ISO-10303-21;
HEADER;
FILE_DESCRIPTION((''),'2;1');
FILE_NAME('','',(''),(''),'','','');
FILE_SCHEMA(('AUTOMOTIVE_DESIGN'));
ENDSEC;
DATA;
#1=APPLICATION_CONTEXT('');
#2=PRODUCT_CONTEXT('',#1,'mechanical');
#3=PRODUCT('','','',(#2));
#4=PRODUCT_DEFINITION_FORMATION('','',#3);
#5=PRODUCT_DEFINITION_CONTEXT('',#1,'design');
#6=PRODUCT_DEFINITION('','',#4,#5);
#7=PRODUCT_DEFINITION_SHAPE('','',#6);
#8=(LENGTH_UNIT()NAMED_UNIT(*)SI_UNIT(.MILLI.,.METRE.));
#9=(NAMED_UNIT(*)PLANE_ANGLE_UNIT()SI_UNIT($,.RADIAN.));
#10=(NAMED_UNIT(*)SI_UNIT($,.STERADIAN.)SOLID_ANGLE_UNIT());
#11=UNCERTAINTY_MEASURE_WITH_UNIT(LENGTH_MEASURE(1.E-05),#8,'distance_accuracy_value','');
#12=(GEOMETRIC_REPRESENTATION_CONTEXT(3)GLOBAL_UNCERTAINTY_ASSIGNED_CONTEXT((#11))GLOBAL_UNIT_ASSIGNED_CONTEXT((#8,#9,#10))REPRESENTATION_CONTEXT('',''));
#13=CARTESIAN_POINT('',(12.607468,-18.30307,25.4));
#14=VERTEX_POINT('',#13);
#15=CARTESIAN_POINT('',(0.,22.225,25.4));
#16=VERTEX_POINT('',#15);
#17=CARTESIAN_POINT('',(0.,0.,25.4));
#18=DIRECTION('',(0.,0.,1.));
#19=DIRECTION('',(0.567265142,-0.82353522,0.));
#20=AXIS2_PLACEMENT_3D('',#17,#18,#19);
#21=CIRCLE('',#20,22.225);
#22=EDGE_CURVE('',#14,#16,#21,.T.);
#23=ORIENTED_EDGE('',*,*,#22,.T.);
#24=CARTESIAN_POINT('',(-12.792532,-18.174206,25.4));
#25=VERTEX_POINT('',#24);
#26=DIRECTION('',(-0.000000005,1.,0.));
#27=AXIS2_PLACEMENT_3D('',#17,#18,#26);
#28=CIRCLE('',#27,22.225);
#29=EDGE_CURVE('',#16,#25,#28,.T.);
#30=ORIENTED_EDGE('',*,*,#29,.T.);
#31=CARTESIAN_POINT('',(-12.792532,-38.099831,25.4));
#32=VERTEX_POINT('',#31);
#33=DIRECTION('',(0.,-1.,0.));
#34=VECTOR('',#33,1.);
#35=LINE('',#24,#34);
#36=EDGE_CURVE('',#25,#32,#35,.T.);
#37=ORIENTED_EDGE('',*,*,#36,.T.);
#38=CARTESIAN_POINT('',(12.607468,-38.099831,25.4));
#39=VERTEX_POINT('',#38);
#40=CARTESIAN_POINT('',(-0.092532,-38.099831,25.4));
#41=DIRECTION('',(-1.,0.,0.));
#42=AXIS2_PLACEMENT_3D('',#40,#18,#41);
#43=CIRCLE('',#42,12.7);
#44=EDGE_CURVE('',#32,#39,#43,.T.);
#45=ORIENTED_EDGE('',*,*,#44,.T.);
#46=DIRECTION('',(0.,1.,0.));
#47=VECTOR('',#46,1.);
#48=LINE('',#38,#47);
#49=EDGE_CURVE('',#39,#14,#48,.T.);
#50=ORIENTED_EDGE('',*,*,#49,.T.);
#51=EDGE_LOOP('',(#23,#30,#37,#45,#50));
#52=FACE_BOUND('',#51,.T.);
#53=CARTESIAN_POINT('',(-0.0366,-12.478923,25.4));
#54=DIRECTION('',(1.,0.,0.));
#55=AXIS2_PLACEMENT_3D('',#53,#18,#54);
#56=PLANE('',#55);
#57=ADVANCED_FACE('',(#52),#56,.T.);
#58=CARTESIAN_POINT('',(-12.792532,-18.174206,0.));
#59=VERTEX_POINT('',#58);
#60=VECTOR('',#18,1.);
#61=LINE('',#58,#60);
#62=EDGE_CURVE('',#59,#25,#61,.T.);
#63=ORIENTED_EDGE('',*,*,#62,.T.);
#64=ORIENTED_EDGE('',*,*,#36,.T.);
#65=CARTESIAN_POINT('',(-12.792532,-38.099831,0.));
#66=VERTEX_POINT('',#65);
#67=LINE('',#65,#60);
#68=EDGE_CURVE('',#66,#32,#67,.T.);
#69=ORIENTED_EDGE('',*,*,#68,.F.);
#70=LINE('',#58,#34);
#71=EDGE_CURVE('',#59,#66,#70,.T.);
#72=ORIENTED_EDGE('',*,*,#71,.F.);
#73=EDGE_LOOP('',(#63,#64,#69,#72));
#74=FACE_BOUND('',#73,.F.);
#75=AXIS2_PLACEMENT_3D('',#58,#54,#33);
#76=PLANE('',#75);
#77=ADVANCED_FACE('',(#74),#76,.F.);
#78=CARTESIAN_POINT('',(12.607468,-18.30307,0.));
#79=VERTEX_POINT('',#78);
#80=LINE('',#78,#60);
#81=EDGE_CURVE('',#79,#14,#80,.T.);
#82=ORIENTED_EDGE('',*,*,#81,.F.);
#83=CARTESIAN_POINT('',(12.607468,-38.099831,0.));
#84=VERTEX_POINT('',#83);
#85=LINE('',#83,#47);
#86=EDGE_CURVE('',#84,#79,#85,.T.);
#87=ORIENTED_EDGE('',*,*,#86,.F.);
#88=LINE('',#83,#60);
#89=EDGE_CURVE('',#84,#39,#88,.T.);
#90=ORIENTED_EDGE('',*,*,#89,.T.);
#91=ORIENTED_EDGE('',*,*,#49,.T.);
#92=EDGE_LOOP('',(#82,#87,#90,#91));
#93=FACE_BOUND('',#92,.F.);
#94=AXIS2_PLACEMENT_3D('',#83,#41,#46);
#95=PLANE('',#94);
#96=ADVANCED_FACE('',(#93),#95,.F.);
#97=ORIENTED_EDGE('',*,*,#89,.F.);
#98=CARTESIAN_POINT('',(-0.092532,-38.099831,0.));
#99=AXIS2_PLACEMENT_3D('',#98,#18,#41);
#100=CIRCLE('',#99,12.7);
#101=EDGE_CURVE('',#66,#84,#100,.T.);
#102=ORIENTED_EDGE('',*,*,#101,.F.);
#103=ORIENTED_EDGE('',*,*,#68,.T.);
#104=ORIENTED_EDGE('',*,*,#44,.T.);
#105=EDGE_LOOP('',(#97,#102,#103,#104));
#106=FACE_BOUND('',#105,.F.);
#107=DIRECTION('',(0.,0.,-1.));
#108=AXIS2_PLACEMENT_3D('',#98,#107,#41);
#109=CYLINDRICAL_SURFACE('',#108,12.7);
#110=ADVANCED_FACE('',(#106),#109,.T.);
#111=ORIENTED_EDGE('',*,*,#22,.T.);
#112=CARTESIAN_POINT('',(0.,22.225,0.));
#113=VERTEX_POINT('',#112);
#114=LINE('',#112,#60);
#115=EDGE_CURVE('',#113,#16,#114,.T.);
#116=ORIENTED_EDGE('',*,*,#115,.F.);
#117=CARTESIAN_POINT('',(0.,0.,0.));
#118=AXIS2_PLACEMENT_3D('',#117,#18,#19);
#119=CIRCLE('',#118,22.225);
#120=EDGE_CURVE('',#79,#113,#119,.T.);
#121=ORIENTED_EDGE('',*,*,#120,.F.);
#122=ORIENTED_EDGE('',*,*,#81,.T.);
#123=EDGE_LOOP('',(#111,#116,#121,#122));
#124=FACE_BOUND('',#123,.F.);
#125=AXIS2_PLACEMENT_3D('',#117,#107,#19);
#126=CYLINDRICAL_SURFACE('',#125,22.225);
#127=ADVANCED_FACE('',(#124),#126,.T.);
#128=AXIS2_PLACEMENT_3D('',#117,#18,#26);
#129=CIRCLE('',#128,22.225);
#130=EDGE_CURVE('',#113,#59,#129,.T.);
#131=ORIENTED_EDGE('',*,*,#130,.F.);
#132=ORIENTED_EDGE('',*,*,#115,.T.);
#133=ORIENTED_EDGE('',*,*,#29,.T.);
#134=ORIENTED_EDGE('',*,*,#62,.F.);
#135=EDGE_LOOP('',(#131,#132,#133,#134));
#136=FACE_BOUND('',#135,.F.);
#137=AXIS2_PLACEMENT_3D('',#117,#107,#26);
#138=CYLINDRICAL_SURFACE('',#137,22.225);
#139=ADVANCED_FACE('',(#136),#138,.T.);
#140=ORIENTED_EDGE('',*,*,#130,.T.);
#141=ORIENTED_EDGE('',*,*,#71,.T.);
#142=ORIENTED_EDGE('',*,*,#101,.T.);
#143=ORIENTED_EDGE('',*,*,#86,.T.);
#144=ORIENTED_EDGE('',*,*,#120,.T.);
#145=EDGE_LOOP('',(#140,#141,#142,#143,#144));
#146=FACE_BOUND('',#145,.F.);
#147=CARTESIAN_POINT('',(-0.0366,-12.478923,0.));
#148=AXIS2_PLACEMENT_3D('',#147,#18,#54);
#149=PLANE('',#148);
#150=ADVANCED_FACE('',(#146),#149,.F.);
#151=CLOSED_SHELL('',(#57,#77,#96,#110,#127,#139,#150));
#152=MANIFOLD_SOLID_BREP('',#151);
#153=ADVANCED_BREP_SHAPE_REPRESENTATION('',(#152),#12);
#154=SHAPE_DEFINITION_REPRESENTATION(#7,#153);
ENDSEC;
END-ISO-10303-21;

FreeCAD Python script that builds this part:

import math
import FreeCAD as App
import Part
import Sketcher

V = App.Vector
Q = App.Units.Quantity

doc = App.newDocument("Part")
body = doc.addObject("PartDesign::Body", "Body")

# Sketch on XY plane
sketch1 = body.newObject("Sketcher::SketchObject", "Sketch")
sketch1.AttachmentSupport = (doc.getObject("XY_Plane"), [""])
sketch1.MapMode = "FlatFace"
sketch1.addGeometry([
    Part.LineSegment(V(13, -38, 0), V(13, -18, 0)),  # 0
    Part.ArcOfCircle(Part.Circle(V(0, 0, 0), V(0, 0, 1), 22), math.radians(-55), math.radians(90)),  # 1
    Part.ArcOfCircle(Part.Circle(V(0, 0, 0), V(0, 0, 1), 22), math.radians(90), math.radians(235)),  # 2
    Part.LineSegment(V(-13, -18, 0), V(-13, -38, 0)),  # 3
    Part.ArcOfCircle(Part.Circle(V(0, -38, 0), V(0, 0, 1), 13), math.radians(180), math.radians(360)),  # 4
], False)
sketch1.addConstraint([
    Sketcher.Constraint("Coincident", 0, 2, 1, 1),
    Sketcher.Constraint("Tangent", 1, 2, 2, 1),
    Sketcher.Constraint("Coincident", 2, 2, 3, 1),
    Sketcher.Constraint("Tangent", 3, 2, 4, 1),
    Sketcher.Constraint("Tangent", 4, 2, 0, 1),
    Sketcher.Constraint("Vertical", 0),
    Sketcher.Constraint("Vertical", 3),
    Sketcher.Constraint("Coincident", 1, 3, -1, 1),
    Sketcher.Constraint("Equal", 1, 2),
    Sketcher.Constraint("PointOnObject", 1, 2, -2),
    Sketcher.Constraint("Radius", 4, Q("0.5 in")),
    Sketcher.Constraint("Radius", 1, Q("0.875 in")),
    Sketcher.Constraint("DistanceY", 0, 1, 0, 2, Q("0.7794 in")),
    Sketcher.Constraint("DistanceY", 3, 2, 3, 1, Q("19.925625 mm")),
])
pad1 = body.newObject("PartDesign::Pad", "Pad")
pad1.Profile = sketch1
pad1.Length = Q("1 in")

doc.recompute()
